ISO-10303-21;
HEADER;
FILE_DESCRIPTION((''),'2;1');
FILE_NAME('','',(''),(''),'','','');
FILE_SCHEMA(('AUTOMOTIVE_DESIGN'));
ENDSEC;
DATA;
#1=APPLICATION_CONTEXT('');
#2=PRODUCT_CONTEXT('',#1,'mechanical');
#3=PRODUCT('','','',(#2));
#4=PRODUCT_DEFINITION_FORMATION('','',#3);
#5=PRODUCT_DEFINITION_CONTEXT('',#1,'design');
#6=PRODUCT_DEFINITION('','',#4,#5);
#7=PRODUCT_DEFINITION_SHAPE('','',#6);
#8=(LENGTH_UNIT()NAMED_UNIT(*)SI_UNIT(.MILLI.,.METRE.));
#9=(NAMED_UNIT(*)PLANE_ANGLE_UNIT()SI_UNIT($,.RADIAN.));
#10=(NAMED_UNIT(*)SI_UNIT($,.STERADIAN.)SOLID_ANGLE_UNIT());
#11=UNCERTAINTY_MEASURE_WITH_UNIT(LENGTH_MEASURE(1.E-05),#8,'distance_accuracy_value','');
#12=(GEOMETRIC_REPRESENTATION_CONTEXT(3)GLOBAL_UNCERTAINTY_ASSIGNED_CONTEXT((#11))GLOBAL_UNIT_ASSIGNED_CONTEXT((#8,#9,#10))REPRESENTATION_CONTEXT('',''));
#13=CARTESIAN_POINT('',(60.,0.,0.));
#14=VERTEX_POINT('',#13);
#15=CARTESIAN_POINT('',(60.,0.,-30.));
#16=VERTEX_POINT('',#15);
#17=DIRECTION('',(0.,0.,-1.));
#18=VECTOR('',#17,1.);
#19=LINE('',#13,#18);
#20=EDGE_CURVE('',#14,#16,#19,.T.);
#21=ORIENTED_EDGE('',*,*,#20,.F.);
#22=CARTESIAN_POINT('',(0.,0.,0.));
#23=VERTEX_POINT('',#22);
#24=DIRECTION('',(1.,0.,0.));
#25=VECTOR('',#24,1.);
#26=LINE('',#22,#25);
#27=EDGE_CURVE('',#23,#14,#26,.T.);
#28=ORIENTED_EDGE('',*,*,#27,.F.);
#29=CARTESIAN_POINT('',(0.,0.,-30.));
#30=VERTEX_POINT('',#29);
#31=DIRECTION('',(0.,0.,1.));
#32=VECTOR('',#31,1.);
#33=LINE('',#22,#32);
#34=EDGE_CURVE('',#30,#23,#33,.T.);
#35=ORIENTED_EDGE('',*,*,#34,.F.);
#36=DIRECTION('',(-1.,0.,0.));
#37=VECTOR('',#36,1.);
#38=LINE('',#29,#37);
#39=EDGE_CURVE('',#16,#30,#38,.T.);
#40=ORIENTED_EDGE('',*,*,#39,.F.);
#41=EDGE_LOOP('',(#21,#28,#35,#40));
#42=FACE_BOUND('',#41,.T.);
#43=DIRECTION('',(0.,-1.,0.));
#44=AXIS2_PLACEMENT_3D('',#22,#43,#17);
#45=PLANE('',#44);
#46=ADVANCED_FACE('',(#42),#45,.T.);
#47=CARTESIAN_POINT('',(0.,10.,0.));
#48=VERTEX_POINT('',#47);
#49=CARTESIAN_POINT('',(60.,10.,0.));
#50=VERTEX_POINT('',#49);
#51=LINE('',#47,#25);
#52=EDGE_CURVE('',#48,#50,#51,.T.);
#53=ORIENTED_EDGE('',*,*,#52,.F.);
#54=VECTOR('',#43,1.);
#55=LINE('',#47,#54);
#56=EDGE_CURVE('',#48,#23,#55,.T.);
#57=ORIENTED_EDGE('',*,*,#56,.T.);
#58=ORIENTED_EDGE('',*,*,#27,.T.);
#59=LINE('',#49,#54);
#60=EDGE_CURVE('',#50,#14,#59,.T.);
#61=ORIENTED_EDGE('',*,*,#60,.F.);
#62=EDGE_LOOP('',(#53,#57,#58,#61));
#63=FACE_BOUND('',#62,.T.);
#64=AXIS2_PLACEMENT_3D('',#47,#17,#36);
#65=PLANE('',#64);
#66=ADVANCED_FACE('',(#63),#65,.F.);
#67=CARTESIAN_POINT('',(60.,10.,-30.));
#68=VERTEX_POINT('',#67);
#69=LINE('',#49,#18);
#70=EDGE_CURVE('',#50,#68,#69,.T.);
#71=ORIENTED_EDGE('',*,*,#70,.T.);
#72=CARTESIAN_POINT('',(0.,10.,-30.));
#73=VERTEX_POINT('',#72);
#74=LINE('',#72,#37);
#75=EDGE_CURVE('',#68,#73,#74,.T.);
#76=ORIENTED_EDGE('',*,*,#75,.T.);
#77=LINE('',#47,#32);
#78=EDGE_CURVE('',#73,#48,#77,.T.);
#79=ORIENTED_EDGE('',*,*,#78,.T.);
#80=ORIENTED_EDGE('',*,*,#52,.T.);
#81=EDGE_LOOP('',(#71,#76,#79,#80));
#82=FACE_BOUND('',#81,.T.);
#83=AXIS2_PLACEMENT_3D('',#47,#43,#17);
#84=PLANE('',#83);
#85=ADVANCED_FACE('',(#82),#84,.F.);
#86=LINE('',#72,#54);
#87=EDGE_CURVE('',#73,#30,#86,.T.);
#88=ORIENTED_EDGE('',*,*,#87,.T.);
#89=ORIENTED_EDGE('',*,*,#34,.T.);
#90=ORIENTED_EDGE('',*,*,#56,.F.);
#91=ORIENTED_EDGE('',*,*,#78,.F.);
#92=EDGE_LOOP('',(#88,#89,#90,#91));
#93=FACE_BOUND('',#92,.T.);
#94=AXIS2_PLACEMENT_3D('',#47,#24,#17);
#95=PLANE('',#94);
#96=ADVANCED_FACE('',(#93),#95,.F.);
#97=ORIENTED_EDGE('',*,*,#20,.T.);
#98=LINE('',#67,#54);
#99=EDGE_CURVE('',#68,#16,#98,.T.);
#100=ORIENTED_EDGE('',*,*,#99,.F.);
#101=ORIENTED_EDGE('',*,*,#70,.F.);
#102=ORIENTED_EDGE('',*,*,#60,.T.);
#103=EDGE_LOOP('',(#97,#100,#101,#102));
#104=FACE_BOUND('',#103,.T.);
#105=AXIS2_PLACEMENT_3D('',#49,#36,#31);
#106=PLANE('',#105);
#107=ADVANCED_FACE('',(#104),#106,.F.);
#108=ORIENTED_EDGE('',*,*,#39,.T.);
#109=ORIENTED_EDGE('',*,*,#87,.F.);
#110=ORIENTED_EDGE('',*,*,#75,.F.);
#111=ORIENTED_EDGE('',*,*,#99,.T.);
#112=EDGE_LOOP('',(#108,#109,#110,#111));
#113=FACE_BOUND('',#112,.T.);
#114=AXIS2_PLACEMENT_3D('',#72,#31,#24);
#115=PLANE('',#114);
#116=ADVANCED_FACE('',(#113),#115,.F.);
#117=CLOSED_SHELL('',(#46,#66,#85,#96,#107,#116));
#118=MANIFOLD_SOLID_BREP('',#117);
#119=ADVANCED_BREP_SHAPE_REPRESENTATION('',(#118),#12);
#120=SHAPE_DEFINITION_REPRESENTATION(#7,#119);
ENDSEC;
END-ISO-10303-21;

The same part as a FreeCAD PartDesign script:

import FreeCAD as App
import Part
import Sketcher

V = App.Vector

doc = App.newDocument("Part")
params = doc.addObject("Spreadsheet::Sheet", "Params")
for row, (alias, value) in enumerate([
    ("sketch1_width", "60 mm"),
    ("sketch1_height", "30 mm"),
    ("pad1_length", "10 mm"),
], start=1):
    params.set(f"A{row}", alias)
    params.set(f"B{row}", "=" + value)
    params.setAlias(f"B{row}", alias)

body = doc.addObject("PartDesign::Body", "Body")

# Sketch on XZ plane
sketch1 = body.newObject("Sketcher::SketchObject", "Sketch")
sketch1.AttachmentSupport = (doc.getObject("XZ_Plane"), [""])
sketch1.MapMode = "FlatFace"
sketch1.addGeometry(Part.LineSegment(V(0, -30, 0), V(0, 0, 0)), False)
sketch1.addGeometry(Part.LineSegment(V(0, 0, 0), V(60, 0, 0)), False)
sketch1.addGeometry(Part.LineSegment(V(60, 0, 0), V(60, -30, 0)), False)
sketch1.addGeometry(Part.LineSegment(V(60, -30, 0), V(0, -30, 0)), False)
sketch1.addConstraint(Sketcher.Constraint("Coincident", 0, 2, 1, 1))
sketch1.addConstraint(Sketcher.Constraint("Coincident", 1, 2, 2, 1))
sketch1.addConstraint(Sketcher.Constraint("Coincident", 2, 2, 3, 1))
sketch1.addConstraint(Sketcher.Constraint("Coincident", 3, 2, 0, 1))
sketch1.addConstraint(Sketcher.Constraint("Vertical", 0))
sketch1.addConstraint(Sketcher.Constraint("Horizontal", 1))
sketch1.addConstraint(Sketcher.Constraint("Vertical", 2))
sketch1.addConstraint(Sketcher.Constraint("Horizontal", 3))
sketch1.addConstraint(Sketcher.Constraint("Coincident", 0, 2, -1, 1))
sketch1.addConstraint(Sketcher.Constraint("DistanceX", 1, 1, 1, 2, 60.0))
sketch1.addConstraint(Sketcher.Constraint("DistanceY", 0, 1, 0, 2, 30.0))
sketch1.setExpression("Constraints[9]", "Params.sketch1_width")
sketch1.setExpression("Constraints[10]", "Params.sketch1_height")
pad1 = body.newObject("PartDesign::Pad", "Pad")
pad1.Profile = sketch1
pad1.setExpression("Length", "Params.pad1_length")
pad1.Reversed = True

doc.recompute()
